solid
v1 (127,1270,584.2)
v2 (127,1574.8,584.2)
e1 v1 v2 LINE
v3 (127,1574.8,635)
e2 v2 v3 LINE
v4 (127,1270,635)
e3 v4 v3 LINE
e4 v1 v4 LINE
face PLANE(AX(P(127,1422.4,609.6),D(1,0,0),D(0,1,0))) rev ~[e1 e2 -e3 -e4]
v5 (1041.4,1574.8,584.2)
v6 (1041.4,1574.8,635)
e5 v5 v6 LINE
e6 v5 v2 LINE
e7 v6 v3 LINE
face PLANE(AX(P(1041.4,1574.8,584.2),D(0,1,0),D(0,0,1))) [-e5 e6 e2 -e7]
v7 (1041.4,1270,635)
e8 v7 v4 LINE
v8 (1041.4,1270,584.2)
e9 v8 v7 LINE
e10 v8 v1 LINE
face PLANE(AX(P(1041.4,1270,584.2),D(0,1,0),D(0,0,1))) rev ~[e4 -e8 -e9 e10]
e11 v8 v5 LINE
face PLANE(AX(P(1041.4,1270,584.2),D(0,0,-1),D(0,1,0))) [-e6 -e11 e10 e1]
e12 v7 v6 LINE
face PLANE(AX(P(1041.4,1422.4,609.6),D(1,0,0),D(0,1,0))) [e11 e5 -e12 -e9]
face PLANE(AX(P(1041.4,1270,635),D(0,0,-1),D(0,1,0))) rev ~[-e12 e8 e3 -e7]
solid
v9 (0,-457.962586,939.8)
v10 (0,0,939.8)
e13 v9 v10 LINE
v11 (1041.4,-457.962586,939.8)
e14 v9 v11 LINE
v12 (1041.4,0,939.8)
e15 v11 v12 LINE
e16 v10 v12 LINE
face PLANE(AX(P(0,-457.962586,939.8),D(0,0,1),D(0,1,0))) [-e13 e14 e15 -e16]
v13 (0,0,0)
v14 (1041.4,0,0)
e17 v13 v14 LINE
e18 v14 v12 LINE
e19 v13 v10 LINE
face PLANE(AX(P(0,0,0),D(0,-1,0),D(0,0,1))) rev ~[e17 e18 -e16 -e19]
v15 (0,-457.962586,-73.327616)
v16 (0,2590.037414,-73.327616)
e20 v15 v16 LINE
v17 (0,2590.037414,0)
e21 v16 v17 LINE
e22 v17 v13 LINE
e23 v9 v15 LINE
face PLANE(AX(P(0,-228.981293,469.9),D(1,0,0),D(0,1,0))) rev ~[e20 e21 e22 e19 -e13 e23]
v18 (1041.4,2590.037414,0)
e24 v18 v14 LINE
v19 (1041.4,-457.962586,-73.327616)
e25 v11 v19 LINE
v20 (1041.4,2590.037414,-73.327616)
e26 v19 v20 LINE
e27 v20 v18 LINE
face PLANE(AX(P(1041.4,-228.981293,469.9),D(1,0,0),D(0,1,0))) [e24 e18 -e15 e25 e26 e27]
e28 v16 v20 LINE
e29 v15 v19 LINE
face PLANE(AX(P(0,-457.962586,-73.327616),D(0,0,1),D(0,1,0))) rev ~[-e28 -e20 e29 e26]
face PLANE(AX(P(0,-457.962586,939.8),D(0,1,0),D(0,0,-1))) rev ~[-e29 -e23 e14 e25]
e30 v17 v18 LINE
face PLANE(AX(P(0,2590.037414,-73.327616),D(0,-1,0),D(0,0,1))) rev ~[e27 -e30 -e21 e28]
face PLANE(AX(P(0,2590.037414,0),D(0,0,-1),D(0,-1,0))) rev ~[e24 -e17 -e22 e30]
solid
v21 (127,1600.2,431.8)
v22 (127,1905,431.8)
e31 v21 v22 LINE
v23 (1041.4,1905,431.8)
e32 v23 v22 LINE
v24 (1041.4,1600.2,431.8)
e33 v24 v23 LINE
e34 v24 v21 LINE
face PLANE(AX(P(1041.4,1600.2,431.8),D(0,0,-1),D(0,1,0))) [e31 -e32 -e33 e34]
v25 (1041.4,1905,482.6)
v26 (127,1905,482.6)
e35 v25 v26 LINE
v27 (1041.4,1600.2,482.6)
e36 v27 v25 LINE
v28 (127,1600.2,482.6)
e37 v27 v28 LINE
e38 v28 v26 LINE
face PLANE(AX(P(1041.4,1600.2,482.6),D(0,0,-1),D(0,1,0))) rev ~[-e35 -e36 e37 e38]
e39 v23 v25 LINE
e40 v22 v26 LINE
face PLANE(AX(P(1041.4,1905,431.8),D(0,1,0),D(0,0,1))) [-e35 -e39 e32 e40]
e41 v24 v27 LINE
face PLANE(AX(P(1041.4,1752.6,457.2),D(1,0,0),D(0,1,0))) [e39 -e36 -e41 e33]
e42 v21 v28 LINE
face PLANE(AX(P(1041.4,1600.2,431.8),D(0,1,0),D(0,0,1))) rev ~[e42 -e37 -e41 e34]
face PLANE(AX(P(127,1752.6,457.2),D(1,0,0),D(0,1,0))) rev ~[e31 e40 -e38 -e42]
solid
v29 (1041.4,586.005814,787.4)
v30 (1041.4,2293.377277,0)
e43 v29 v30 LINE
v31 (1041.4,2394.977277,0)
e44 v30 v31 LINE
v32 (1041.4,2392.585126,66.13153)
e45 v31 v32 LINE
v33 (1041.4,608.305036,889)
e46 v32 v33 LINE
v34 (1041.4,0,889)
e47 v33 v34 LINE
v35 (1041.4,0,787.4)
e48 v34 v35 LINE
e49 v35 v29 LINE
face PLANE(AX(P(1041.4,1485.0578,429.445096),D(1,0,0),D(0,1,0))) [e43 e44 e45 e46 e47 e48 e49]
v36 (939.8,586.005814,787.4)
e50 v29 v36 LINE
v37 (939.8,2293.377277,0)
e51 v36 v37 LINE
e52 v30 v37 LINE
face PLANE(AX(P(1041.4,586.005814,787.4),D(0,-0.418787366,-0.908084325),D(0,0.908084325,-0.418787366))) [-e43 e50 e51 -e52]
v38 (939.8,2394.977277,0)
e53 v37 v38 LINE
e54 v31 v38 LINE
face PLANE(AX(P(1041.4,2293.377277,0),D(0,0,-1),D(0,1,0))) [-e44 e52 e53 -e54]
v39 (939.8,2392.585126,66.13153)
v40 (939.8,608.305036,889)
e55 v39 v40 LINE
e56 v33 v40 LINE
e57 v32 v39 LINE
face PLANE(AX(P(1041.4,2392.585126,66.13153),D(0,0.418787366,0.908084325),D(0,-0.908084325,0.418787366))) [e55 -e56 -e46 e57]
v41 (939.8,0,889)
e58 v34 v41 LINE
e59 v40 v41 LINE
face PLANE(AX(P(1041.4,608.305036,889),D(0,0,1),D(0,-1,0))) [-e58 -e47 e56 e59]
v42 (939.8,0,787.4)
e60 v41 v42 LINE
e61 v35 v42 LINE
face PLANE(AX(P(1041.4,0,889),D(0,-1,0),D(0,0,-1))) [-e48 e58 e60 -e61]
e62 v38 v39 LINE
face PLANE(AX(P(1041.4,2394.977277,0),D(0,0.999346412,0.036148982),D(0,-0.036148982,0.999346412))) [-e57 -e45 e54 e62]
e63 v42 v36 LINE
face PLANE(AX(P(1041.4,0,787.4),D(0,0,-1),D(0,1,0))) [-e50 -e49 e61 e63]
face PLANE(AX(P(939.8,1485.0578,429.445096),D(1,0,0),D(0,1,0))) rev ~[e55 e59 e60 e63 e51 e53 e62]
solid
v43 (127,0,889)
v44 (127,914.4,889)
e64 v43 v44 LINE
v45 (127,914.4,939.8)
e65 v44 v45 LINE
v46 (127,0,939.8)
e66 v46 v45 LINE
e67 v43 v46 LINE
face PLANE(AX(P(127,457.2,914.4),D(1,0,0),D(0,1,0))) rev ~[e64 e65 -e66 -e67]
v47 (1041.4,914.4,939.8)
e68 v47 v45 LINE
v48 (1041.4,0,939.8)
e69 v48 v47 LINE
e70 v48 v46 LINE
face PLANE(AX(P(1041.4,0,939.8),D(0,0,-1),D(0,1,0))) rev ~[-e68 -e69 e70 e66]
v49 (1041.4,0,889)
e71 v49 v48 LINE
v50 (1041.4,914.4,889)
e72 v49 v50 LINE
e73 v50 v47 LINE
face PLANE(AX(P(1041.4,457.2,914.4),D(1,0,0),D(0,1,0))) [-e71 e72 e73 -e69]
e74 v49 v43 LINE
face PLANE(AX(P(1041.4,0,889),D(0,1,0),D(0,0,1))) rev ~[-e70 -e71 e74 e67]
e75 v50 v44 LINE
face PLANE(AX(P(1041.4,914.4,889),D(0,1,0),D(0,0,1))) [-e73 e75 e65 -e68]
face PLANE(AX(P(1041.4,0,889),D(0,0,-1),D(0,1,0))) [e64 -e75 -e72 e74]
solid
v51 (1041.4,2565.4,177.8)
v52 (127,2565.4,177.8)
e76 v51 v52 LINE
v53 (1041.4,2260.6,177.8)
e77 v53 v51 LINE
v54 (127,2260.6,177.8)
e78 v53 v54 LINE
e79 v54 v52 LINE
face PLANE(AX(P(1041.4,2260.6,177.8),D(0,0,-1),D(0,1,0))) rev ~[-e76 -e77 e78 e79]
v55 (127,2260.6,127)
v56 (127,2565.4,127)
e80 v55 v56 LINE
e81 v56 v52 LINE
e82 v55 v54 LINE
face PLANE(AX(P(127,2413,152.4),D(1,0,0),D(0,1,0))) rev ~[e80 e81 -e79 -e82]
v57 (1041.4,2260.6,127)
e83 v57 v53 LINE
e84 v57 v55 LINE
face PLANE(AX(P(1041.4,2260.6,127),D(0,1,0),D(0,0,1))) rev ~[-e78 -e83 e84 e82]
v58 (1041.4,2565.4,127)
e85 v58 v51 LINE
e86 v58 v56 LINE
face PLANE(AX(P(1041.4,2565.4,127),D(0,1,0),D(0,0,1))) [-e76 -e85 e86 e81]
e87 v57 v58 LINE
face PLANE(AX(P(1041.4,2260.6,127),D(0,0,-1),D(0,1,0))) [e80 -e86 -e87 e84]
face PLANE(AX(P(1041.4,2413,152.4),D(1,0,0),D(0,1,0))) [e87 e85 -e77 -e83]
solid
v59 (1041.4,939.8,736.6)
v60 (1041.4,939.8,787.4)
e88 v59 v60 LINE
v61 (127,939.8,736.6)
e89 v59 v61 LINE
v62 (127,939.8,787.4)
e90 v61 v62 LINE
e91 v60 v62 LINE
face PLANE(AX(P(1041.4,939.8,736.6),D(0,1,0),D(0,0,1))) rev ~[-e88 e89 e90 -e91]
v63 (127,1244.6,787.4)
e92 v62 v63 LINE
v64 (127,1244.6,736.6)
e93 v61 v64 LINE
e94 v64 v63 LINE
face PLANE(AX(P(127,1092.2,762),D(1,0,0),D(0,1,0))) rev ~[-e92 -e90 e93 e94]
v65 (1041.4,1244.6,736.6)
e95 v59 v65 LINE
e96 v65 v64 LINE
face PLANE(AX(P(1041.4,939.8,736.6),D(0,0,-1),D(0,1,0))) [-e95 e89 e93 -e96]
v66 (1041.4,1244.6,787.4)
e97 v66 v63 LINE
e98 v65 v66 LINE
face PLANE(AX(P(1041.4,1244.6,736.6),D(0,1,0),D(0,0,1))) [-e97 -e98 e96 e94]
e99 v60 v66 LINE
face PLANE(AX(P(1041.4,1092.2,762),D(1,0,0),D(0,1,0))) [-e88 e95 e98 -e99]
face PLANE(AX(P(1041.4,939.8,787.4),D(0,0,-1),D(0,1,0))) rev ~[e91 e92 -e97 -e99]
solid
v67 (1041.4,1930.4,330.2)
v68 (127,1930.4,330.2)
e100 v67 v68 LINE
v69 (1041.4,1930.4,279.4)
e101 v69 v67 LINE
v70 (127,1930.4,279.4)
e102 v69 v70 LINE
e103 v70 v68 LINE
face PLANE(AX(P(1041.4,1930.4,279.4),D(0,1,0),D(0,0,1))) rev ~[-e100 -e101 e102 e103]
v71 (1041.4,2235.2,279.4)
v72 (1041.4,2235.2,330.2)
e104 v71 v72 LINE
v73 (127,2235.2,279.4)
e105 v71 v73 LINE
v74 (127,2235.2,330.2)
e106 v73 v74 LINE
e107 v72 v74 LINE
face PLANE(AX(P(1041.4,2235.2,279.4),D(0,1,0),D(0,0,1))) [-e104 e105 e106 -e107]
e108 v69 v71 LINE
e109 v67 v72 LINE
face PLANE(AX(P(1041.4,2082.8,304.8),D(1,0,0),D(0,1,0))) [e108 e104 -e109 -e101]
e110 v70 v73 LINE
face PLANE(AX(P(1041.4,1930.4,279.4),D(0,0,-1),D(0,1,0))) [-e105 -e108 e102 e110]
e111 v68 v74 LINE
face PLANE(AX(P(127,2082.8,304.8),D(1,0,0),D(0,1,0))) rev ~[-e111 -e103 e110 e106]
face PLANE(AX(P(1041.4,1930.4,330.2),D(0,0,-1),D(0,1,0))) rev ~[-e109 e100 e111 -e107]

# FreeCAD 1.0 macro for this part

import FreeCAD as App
import Part
import Sketcher

V = App.Vector
Q = App.Units.Quantity


def add_polygon(sketch, points):
    """Adds a closed chain of lines whose ends are joined by coincident constraints."""
    first, n = sketch.GeometryCount, len(points)
    for a, b in zip(points, points[1:] + points[:1]):
        sketch.addGeometry(Part.LineSegment(App.Vector(*a, 0), App.Vector(*b, 0)), False)
    for i in range(n):
        sketch.addConstraint(Sketcher.Constraint("Coincident", first + i, 2, first + (i + 1) % n, 1))

doc = App.newDocument("Part")
body = doc.addObject("PartDesign::Body", "Body")

sketch1 = body.newObject("Sketcher::SketchObject", "Sketch")
sketch1.AttachmentSupport = (doc.getObject("YZ_Plane"), [""])
sketch1.MapMode = "FlatFace"
add_polygon(sketch1, [(-457.962586, 939.8), (-457.962586, -73.327616), (2590.037414, -73.327616), (2590.037414, 0), (0, 0), (0, 939.8)])
sketch1.addConstraint([
    Sketcher.Constraint("Vertical", 0),
    Sketcher.Constraint("Horizontal", 1),
    Sketcher.Constraint("Vertical", 2),
    Sketcher.Constraint("Horizontal", 3),
    Sketcher.Constraint("Vertical", 4),
    Sketcher.Constraint("Horizontal", 5),
    Sketcher.Constraint("Coincident", 3, 2, -1, 1),
    Sketcher.Constraint("DistanceX", 1, 1, 1, 2, Q("120 in")),
    Sketcher.Constraint("DistanceY", 4, 1, 4, 2, Q("37 in")),
    Sketcher.Constraint("DistanceX", 3, 2, 3, 1, 2590.037414),
    Sketcher.Constraint("DistanceY", 0, 2, 0, 1, 1013.127616),
])
pad1 = body.newObject("PartDesign::Pad", "Pad")
pad1.Profile = sketch1
pad1.Length = Q("41 in")
body2 = doc.addObject("PartDesign::Body", "Body001")
body2.AllowCompound = True

sketch2 = body2.newObject("Sketcher::SketchObject", "Sketch001")
sketch2.AttachmentSupport = (doc.getObject("YZ_Plane001"), [""])
sketch2.MapMode = "FlatFace"
sketch2.AttachmentOffset = App.Placement(V(0, 0, 41 * 25.4), App.Rotation())
add_polygon(sketch2, [(0, 939.8), (0, 889), (914.4, 889), (914.4, 939.8)])
add_polygon(sketch2, [(939.8, 787.4), (939.8, 736.6), (1244.6, 736.6), (1244.6, 787.4)])
add_polygon(sketch2, [(1270, 635), (1270, 584.2), (1574.8, 584.2), (1574.8, 635)])
add_polygon(sketch2, [(1600.2, 482.6), (1600.2, 431.8), (1905, 431.8), (1905, 482.6)])
add_polygon(sketch2, [(1930.4, 330.2), (1930.4, 279.4), (2235.2, 279.4), (2235.2, 330.2)])
add_polygon(sketch2, [(2260.6, 177.8), (2260.6, 127), (2565.4, 127), (2565.4, 177.8)])
sketch2.addConstraint([
    Sketcher.Constraint("Vertical", 0),
    Sketcher.Constraint("Horizontal", 1),
    Sketcher.Constraint("Vertical", 2),
    Sketcher.Constraint("Horizontal", 3),
    Sketcher.Constraint("Vertical", 4),
    Sketcher.Constraint("Horizontal", 5),
    Sketcher.Constraint("Vertical", 6),
    Sketcher.Constraint("Horizontal", 7),
    Sketcher.Constraint("Vertical", 8),
    Sketcher.Constraint("Horizontal", 9),
    Sketcher.Constraint("Vertical", 10),
    Sketcher.Constraint("Horizontal", 11),
    Sketcher.Constraint("Vertical", 12),
    Sketcher.Constraint("Horizontal", 13),
    Sketcher.Constraint("Vertical", 14),
    Sketcher.Constraint("Horizontal", 15),
    Sketcher.Constraint("Vertical", 16),
    Sketcher.Constraint("Horizontal", 17),
    Sketcher.Constraint("Vertical", 18),
    Sketcher.Constraint("Horizontal", 19),
    Sketcher.Constraint("Vertical", 20),
    Sketcher.Constraint("Horizontal", 21),
    Sketcher.Constraint("Vertical", 22),
    Sketcher.Constraint("Horizontal", 23),
    Sketcher.Constraint("PointOnObject", 0, 2, -2),
    Sketcher.Constraint("Equal", 7, 9),
    Sketcher.Constraint("Equal", 11, 13),
    Sketcher.Constraint("Equal", 15, 17),
    Sketcher.Constraint("Equal", 19, 21),
    Sketcher.Constraint("Equal", 2, 4),
    Sketcher.Constraint("Equal", 6, 8),
    Sketcher.Constraint("Equal", 10, 12),
    Sketcher.Constraint("Equal", 14, 16),
    Sketcher.Constraint("Equal", 18, 20),
    Sketcher.Constraint("DistanceX", 1, 1, 1, 2, Q("36 in")),
    Sketcher.Constraint("DistanceX", 5, 1, 5, 2, Q("12 in")),
    Sketcher.Constraint("DistanceY", 0, 2, 0, 1, Q("2 in")),
    Sketcher.Constraint("DistanceY", -1, 1, 0, 2, Q("35 in")),
    Sketcher.Constraint("DistanceX", -1, 1, 4, 2, Q("37 in")),
    Sketcher.Constraint("DistanceY", -1, 1, 4, 2, Q("29 in")),
    Sketcher.Constraint("DistanceX", -1, 1, 8, 2, Q("50 in")),
    Sketcher.Constraint("DistanceY", -1, 1, 8, 2, Q("23 in")),
    Sketcher.Constraint("DistanceX", -1, 1, 12, 2, Q("63 in")),
    Sketcher.Constraint("DistanceY", -1, 1, 12, 2, Q("17 in")),
    Sketcher.Constraint("DistanceX", -1, 1, 16, 2, Q("76 in")),
    Sketcher.Constraint("DistanceY", -1, 1, 16, 2, Q("11 in")),
    Sketcher.Constraint("DistanceX", -1, 1, 20, 2, Q("89 in")),
    Sketcher.Constraint("DistanceY", -1, 1, 20, 2, Q("5 in")),
])
pad2 = body2.newObject("PartDesign::Pad", "Pad001")
pad2.Profile = sketch2
pad2.Length = Q("36 in")
pad2.Reversed = True
body3 = doc.addObject("PartDesign::Body", "Body002")

sketch3 = body3.newObject("Sketcher::SketchObject", "Sketch002")
sketch3.AttachmentSupport = (doc.getObject("YZ_Plane002"), [""])
sketch3.MapMode = "FlatFace"
sketch3.AttachmentOffset = App.Placement(V(0, 0, 41 * 25.4), App.Rotation())
add_polygon(sketch3, [(2392.585126, 66.13153), (608.305036, 889), (0, 889), (0, 787.4), (586.005814, 787.4), (2293.377277, 0), (2394.977277, 0)])
sketch3.addConstraint([
    Sketcher.Constraint("Horizontal", 1),
    Sketcher.Constraint("Vertical", 2),
    Sketcher.Constraint("Horizontal", 3),
    Sketcher.Constraint("Horizontal", 5),
    Sketcher.Constraint("PointOnObject", 1, 2, -2),
    Sketcher.Constraint("PointOnObject", 4, 2, -1),
    Sketcher.Constraint("Parallel", 0, 4),
    Sketcher.Constraint("Equal", 5, 2),
    Sketcher.Constraint("DistanceX", 5, 1, 5, 2, Q("4 in")),
    Sketcher.Constraint("DistanceY", -1, 1, 0, 2, Q("35 in")),
    Sketcher.Constraint("Distance", 0, 1964.883701),
    Sketcher.Constraint("Distance", 6, 66.174781),
    Sketcher.Constraint("DistanceX", 1, 2, 1, 1, 608.305036),
    Sketcher.Constraint("DistanceX", 3, 1, 3, 2, 586.005814),
])
pad3 = body3.newObject("PartDesign::Pad", "Pad002")
pad3.Profile = sketch3
pad3.Length = Q("4 in")
pad3.Reversed = True

doc.recompute()
